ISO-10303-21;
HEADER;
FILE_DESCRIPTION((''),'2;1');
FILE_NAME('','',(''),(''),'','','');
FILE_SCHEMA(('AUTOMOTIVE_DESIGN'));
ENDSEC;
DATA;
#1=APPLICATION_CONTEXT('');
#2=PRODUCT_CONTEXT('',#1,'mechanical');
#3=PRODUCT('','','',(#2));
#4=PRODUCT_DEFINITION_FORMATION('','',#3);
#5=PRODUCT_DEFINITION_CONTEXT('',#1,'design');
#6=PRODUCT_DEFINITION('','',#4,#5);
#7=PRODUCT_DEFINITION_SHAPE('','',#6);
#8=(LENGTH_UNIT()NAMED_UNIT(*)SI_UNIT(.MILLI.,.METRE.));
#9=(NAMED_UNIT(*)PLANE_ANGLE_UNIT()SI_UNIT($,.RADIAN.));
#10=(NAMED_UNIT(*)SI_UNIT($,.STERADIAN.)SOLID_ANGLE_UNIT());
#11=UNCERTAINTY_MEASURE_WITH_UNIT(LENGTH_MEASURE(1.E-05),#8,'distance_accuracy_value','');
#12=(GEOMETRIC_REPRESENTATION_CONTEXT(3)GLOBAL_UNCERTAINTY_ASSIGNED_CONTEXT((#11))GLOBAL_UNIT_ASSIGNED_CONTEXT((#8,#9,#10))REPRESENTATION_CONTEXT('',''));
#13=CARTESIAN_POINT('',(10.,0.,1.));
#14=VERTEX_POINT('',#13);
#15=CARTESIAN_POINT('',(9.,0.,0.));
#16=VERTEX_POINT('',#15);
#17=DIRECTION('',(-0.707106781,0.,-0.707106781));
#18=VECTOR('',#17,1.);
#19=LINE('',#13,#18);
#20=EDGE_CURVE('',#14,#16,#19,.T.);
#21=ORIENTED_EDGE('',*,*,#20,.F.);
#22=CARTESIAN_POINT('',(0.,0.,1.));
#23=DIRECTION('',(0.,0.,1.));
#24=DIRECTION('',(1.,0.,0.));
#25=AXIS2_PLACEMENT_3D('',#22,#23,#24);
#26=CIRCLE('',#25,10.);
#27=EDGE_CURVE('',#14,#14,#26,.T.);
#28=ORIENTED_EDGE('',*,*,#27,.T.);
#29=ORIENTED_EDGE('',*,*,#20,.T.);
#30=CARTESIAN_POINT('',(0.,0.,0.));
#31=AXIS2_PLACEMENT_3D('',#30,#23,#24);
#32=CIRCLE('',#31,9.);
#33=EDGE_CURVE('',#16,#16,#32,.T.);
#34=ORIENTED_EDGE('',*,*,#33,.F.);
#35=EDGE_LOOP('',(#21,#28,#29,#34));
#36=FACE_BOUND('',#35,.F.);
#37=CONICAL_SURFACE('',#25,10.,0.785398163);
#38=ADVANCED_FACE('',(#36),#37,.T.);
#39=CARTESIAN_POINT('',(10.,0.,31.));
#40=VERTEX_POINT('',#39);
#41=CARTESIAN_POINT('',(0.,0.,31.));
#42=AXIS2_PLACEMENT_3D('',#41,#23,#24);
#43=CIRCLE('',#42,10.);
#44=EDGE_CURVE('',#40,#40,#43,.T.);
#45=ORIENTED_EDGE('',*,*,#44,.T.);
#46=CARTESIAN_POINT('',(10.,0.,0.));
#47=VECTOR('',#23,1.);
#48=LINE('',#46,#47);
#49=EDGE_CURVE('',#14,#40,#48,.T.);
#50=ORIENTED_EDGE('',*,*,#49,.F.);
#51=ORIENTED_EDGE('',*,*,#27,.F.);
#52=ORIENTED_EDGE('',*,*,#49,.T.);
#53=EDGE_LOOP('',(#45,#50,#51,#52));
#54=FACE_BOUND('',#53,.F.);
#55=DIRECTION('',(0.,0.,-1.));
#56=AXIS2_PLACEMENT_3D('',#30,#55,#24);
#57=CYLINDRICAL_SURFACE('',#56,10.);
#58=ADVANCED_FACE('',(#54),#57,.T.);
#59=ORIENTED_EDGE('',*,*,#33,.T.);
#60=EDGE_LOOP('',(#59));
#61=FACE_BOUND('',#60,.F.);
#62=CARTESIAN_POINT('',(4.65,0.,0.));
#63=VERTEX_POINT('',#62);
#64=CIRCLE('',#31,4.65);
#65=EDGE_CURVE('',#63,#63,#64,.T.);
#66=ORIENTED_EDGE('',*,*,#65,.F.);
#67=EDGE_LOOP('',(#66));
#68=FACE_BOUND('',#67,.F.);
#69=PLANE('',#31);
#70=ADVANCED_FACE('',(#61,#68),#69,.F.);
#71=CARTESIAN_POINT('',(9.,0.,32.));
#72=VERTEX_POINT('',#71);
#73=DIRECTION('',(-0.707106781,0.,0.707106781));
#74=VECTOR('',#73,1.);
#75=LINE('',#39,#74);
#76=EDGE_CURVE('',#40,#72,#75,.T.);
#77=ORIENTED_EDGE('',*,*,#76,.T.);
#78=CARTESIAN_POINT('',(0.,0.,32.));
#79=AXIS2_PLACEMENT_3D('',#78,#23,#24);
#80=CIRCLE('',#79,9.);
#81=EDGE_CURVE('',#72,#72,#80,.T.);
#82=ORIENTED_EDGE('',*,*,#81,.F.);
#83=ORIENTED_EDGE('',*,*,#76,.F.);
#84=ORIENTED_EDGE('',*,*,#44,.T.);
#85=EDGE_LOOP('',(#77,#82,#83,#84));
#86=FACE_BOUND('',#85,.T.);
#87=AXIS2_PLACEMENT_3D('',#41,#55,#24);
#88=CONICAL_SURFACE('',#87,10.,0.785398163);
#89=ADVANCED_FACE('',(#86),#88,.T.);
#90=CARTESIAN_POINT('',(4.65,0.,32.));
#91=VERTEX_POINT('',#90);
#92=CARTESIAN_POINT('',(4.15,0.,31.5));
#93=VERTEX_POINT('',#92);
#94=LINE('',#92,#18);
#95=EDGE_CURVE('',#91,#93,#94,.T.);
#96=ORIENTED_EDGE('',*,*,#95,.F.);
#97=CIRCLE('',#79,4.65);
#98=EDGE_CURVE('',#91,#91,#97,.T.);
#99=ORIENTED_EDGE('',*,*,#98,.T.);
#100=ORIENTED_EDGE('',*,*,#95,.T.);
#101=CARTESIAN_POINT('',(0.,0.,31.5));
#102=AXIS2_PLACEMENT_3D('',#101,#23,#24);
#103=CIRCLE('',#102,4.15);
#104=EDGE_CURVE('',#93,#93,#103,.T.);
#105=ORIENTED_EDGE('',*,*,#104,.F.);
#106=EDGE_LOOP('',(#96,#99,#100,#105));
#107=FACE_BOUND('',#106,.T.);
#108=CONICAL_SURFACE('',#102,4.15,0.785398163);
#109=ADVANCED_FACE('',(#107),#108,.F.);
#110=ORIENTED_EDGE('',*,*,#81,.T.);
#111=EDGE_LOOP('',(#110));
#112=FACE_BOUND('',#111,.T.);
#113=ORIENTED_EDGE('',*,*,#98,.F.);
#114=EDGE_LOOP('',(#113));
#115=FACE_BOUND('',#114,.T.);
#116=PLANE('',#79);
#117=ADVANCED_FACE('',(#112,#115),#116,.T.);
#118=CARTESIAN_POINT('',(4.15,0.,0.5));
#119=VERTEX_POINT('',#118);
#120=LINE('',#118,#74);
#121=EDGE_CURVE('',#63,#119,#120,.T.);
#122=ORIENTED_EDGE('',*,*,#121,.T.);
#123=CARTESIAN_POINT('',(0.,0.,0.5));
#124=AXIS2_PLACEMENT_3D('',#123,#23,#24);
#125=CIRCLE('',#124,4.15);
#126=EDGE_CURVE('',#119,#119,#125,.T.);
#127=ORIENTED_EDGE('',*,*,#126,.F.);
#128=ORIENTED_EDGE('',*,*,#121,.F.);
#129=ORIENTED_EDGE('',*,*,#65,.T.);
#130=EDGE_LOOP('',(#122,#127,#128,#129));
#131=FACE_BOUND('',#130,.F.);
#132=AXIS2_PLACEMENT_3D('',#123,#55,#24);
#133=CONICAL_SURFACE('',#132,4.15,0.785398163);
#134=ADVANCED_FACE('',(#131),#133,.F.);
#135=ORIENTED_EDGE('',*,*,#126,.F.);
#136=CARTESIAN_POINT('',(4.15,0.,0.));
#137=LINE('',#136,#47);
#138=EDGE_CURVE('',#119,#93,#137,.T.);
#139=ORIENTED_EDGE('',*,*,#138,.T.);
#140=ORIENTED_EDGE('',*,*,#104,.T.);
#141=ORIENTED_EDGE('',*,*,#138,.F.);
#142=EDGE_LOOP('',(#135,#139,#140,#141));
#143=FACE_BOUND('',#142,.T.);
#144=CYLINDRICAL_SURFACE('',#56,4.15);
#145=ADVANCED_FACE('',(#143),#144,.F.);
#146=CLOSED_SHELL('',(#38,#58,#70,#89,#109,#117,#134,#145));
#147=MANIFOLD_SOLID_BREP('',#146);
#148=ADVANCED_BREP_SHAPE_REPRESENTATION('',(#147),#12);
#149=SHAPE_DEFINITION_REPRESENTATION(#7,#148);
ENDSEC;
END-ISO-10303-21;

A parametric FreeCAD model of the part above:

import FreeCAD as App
import Part
import Sketcher

V = App.Vector
Q = App.Units.Quantity


def edges_at(feature, points):
    """Names of the edges that pass closest to the given points."""
    edges = feature.Shape.Edges
    near = lambda p: min(range(len(edges)), key=lambda i: edges[i].distToShape(Part.Vertex(*p))[0])
    return sorted({f"Edge{near(p) + 1}" for p in points})

doc = App.newDocument("Part")
body = doc.addObject("PartDesign::Body", "Body")

sketch1 = body.newObject("Sketcher::SketchObject", "Sketch")
sketch1.AttachmentSupport = (doc.getObject("XY_Plane"), [""])
sketch1.MapMode = "FlatFace"
sketch1.addGeometry(Part.Circle(V(0, 0, 0), V(0, 0, 1), 10), False)
sketch1.addGeometry(Part.Circle(V(0, 0, 0), V(0, 0, 1), 4.2), False)
sketch1.addConstraint(Sketcher.Constraint("Coincident", 0, 3, -1, 1))
sketch1.addConstraint(Sketcher.Constraint("Coincident", 1, 3, -1, 1))
sketch1.addConstraint(Sketcher.Constraint("Diameter", 0, Q("20 mm")))
sketch1.addConstraint(Sketcher.Constraint("Diameter", 1, Q("8.3 mm")))
pad1 = body.newObject("PartDesign::Pad", "Pad")
pad1.Profile = sketch1
pad1.Length = 32
doc.recompute()

chamfer = body.newObject("PartDesign::Chamfer", "Chamfer")
chamfer.Base = (pad1, edges_at(pad1, [(-10, 0, 32), (10, 0, 16), (-10, 0, 0)]))
chamfer.Size = 1
doc.recompute()

chamfer2 = body.newObject("PartDesign::Chamfer", "Chamfer001")
chamfer2.Base = (chamfer, edges_at(chamfer, [(4.15, 0, 16), (-4.15, 0, 0), (-4.15, 0, 32)]))
chamfer2.Size = 0.5

doc.recompute()
